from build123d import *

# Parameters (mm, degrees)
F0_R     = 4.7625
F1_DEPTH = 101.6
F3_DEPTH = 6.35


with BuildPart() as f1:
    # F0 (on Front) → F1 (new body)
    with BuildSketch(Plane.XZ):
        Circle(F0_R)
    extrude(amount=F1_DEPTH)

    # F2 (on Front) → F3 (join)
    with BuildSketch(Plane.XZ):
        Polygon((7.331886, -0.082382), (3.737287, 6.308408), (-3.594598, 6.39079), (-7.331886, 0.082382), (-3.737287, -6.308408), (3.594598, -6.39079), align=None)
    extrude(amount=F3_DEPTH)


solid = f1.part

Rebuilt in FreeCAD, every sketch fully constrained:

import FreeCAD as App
import Part
import Sketcher
from FreeCAD import Vector
Q = App.Units.Quantity


def add_polygon(sketch, points):
    """Adds a closed chain of lines whose ends are joined by coincident constraints."""
    first, n = sketch.GeometryCount, len(points)
    for a, b in zip(points, points[1:] + points[:1]):
        sketch.addGeometry(Part.LineSegment(App.Vector(*a, 0), App.Vector(*b, 0)), False)
    for i in range(n):
        sketch.addConstraint(Sketcher.Constraint("Coincident", first + i, 2, first + (i + 1) % n, 1))

doc = App.newDocument("Part")
body = doc.addObject("PartDesign::Body", "Body")

sketch1 = body.newObject("Sketcher::SketchObject", "Sketch")
sketch1.AttachmentSupport = (doc.getObject("XZ_Plane"), [""])
sketch1.MapMode = "FlatFace"
sketch1.addGeometry(Part.Circle(Vector(0, 0, 0), Vector(0, 0, 1), 4.8), False)
sketch1.addConstraint(Sketcher.Constraint("Coincident", 0, 3, -1, 1))
sketch1.addConstraint(Sketcher.Constraint("Diameter", 0, Q("0.375 in")))
pad1 = body.newObject("PartDesign::Pad", "Pad")
pad1.Profile = sketch1
pad1.Length = Q("4 in")

sketch2 = body.newObject("Sketcher::SketchObject", "Sketch001")
sketch2.AttachmentSupport = (doc.getObject("XZ_Plane"), [""])
sketch2.MapMode = "FlatFace"
add_polygon(sketch2, [(7, 0), (4, 6), (-4, 6), (-7, 0), (-4, -6), (4, -6)])
sketch2.addConstraint(Sketcher.Constraint("Symmetric", 0, 2, 3, 2, -1, 1))
sketch2.addConstraint(Sketcher.Constraint("Symmetric", 1, 2, 4, 2, -1, 1))
sketch2.addConstraint(Sketcher.Constraint("Symmetric", 2, 2, 5, 2, -1, 1))
sketch2.addConstraint(Sketcher.Constraint("Equal", 0, 1))
sketch2.addConstraint(Sketcher.Constraint("Equal", 1, 2))
sketch2.addConstraint(Sketcher.Constraint("DistanceX", 1, 2, -1, 1, 3.594598))
sketch2.addConstraint(Sketcher.Constraint("DistanceX", 2, 2, 3, 2, 3.594599))
sketch2.addConstraint(Sketcher.Constraint("Distance", 0, 7.332349))
sketch2.addConstraint(Sketcher.Constraint("DistanceY", -1, 1, 1, 2, 6.39079))
pad2 = body.newObject("PartDesign::Pad", "Pad001")
pad2.Profile = sketch2
pad2.Length = Q("0.25 in")

doc.recompute()
